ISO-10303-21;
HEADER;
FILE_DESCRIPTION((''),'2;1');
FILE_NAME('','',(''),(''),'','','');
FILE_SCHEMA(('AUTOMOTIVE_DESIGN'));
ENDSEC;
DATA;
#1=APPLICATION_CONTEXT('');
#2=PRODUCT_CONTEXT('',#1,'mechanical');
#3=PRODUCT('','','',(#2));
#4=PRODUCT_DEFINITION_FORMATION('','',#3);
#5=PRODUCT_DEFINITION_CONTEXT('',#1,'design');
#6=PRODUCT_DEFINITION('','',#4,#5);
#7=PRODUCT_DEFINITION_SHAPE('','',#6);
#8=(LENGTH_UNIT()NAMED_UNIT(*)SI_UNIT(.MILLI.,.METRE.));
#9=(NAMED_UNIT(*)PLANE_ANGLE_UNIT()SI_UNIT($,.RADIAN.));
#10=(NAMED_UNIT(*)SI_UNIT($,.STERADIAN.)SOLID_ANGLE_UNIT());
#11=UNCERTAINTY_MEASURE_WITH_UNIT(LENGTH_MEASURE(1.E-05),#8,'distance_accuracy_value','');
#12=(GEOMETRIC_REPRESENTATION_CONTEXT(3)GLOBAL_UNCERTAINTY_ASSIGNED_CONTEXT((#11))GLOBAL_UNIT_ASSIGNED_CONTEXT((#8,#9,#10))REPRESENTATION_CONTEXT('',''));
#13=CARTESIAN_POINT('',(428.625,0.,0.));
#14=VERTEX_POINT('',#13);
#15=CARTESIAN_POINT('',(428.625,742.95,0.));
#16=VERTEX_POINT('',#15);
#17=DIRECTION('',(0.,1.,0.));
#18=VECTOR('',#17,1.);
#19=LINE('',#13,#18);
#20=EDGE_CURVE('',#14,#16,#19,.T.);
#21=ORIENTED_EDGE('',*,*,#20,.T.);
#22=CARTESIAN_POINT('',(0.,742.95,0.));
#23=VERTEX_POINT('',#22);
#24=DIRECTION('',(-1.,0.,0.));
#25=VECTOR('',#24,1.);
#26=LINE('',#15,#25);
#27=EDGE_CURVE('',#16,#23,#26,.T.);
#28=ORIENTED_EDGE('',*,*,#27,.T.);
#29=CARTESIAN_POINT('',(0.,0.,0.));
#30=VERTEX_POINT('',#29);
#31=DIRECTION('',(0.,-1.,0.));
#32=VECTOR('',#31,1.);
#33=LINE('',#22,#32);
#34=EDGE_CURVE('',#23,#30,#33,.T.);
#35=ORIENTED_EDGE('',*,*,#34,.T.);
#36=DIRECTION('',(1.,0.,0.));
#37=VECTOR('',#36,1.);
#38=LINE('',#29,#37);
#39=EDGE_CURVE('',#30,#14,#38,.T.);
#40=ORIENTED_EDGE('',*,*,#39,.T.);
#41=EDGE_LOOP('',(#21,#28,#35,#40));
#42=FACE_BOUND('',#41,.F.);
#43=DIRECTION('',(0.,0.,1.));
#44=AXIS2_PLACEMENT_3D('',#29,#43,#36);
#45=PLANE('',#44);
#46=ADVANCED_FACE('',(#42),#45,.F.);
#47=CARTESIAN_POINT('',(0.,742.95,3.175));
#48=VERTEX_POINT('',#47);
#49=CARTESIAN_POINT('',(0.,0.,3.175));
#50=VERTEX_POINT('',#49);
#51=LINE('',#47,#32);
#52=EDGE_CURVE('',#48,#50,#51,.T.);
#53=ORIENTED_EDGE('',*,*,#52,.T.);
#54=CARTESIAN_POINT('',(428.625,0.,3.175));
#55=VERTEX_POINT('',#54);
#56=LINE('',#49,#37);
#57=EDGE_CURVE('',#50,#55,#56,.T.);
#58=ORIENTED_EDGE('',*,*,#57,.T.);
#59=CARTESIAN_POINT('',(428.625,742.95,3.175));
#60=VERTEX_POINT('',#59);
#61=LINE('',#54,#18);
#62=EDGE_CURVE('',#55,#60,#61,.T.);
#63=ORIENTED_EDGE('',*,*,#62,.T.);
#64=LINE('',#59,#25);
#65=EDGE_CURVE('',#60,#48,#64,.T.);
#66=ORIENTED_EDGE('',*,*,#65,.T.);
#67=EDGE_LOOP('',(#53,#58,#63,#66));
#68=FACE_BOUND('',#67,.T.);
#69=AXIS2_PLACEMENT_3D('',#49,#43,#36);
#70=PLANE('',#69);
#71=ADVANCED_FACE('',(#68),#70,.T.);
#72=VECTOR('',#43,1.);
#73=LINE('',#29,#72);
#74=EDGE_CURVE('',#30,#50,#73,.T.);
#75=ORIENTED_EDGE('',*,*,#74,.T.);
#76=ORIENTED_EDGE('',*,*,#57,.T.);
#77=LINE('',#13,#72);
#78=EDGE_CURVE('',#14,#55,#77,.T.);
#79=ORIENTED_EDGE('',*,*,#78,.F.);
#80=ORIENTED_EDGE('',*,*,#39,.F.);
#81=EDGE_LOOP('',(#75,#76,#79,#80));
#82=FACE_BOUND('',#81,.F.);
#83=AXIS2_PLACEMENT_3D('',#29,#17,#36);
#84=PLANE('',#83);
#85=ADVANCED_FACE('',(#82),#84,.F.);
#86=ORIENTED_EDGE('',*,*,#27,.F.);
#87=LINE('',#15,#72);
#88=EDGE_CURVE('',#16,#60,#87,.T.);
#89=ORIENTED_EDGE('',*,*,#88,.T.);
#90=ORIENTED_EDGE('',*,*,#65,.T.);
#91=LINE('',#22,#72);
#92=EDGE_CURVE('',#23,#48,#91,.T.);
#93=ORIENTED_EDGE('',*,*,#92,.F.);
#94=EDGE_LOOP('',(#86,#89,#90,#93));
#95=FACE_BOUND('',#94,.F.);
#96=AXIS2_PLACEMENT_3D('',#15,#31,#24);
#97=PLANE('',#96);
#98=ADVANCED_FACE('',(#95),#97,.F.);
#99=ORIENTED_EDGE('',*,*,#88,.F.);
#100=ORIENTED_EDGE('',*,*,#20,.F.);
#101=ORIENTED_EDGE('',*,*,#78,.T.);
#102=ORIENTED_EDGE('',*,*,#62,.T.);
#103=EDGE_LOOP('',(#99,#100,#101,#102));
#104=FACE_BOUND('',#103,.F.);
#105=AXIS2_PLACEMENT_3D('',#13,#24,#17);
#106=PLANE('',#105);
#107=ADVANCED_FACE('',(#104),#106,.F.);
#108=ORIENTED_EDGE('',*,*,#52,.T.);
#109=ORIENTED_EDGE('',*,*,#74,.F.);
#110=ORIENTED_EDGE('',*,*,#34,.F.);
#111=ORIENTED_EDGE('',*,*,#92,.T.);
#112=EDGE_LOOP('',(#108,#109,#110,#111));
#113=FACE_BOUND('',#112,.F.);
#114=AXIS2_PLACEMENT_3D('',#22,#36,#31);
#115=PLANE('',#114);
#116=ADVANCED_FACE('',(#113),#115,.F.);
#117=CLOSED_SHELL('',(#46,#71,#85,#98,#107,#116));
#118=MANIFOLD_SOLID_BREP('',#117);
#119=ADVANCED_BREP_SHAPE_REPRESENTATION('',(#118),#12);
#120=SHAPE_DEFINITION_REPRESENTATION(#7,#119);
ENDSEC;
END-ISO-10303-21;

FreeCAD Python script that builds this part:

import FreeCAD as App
import Part
import Sketcher
Q = App.Units.Quantity


def add_polygon(sketch, points):
    """Adds a closed chain of lines whose ends are joined by coincident constraints."""
    first, n = sketch.GeometryCount, len(points)
    for a, b in zip(points, points[1:] + points[:1]):
        sketch.addGeometry(Part.LineSegment(App.Vector(*a, 0), App.Vector(*b, 0)), False)
    for i in range(n):
        sketch.addConstraint(Sketcher.Constraint("Coincident", first + i, 2, first + (i + 1) % n, 1))

doc = App.newDocument("Part")
body = doc.addObject("PartDesign::Body", "Body")

# Sketch on XY plane
sketch1 = body.newObject("Sketcher::SketchObject", "Sketch")
sketch1.AttachmentSupport = (doc.getObject("XY_Plane"), [""])
sketch1.MapMode = "FlatFace"
add_polygon(sketch1, [(0, 743), (0, 0), (429, 0), (429, 743)])  # lines 0-3
sketch1.addConstraint(Sketcher.Constraint("Vertical", 0))
sketch1.addConstraint(Sketcher.Constraint("Horizontal", 1))
sketch1.addConstraint(Sketcher.Constraint("Vertical", 2))
sketch1.addConstraint(Sketcher.Constraint("Horizontal", 3))
sketch1.addConstraint(Sketcher.Constraint("Coincident", 0, 2, -1, 1))
sketch1.addConstraint(Sketcher.Constraint("DistanceY", 0, 2, 0, 1, Q("29.25 in")))
sketch1.addConstraint(Sketcher.Constraint("DistanceX", 1, 1, 1, 2, Q("16.875 in")))
pad1 = body.newObject("PartDesign::Pad", "Pad")
pad1.Profile = sketch1
pad1.Length = Q("0.125 in")

doc.recompute()
